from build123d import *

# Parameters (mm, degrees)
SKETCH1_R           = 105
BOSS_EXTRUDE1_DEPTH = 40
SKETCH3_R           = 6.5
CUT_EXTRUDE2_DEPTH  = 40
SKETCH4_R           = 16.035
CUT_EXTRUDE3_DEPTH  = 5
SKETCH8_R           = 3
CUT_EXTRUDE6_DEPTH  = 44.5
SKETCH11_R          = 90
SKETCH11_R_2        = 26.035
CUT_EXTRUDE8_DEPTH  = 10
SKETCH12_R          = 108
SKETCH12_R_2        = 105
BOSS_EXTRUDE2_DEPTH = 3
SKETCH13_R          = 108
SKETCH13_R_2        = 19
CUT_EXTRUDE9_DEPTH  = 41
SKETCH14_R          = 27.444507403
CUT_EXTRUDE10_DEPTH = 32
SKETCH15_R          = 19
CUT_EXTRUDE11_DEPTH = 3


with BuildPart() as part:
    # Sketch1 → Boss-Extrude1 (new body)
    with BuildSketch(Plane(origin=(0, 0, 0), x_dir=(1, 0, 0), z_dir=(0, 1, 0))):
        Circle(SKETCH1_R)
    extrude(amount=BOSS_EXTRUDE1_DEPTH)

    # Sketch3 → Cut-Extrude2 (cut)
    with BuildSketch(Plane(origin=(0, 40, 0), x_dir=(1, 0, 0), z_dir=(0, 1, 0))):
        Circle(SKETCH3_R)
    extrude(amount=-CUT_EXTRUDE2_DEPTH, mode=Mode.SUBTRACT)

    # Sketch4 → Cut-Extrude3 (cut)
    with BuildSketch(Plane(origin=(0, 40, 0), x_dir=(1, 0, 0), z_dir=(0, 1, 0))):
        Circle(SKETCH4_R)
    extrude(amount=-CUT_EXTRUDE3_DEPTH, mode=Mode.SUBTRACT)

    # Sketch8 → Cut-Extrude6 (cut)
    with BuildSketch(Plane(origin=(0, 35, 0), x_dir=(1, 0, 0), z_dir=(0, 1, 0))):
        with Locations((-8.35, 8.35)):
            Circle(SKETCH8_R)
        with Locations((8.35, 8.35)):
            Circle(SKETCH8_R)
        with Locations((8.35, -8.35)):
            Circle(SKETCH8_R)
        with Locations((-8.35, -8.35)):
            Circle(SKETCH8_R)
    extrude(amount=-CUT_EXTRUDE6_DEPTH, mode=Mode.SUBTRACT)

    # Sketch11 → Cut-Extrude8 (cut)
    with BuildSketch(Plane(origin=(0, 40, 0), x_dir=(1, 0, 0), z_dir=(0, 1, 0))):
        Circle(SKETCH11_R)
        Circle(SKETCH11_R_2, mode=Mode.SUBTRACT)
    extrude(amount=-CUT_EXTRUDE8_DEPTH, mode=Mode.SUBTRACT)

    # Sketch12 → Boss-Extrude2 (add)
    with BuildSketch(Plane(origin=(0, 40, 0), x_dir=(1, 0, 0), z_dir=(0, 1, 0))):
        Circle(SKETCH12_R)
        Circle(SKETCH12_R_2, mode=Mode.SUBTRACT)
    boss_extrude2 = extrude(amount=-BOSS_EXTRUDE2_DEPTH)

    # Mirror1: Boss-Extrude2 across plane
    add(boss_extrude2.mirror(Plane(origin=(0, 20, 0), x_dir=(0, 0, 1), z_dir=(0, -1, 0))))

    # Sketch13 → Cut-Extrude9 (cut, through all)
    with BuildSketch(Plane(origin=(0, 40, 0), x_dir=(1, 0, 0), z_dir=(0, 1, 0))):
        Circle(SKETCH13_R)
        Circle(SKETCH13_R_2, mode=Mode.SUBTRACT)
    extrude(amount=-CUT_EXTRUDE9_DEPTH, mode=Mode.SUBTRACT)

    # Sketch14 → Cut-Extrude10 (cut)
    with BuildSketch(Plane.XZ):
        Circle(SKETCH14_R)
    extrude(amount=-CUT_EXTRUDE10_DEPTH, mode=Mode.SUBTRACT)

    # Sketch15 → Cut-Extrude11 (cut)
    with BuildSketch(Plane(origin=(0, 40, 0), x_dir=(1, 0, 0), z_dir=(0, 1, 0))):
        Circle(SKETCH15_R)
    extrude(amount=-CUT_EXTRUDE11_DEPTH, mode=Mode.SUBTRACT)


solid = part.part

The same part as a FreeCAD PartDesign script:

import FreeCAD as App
import Part
import Sketcher
Q = App.Units.Quantity

doc = App.newDocument("Part")
params = doc.addObject("Spreadsheet::Sheet", "Params")
for row, (alias, value) in enumerate([
    ("sketch1_diameter", "210 mm"),
    ("pad1_length", "40 mm"),
    ("sketch2_diameter", "13 mm"),
    ("pocket1_length", "40 mm"),
    ("sketch3_diameter", "32.07 mm"),
    ("pocket2_length", "5 mm"),
    ("sketch4_diameter", "6 mm"),
    ("pocket3_length", "44.5 mm"),
    ("sketch5_diameter", "180 mm"),
    ("sketch5_diameter2", "52.07 mm"),
    ("pocket4_length", "10 mm"),
    ("sketch6_diameter", "216 mm"),
    ("sketch6_diameter2", "210 mm"),
    ("pad2_length", "3 mm"),
    ("sketch7_diameter", "216 mm"),
    ("sketch7_diameter2", "38 mm"),
    ("pocket6_length", "32 mm"),
    ("sketch9_diameter", "38 mm"),
    ("pocket7_length", "3 mm"),
], start=1):
    params.set(f"A{row}", alias)
    params.set(f"B{row}", "=" + value)
    params.setAlias(f"B{row}", alias)

body = doc.addObject("PartDesign::Body", "Body")

sketch1 = doc.addObject("Sketcher::SketchObject", "Sketch")
body.addObject(sketch1)
sketch1.AttachmentSupport = (doc.XZ_Plane, [""])
sketch1.MapMode = "FlatFace"
sketch1.addGeometry(Part.Circle(App.Vector(0, 0, 0), App.Vector(0, 0, 1), 105), False)
sketch1.addConstraint(Sketcher.Constraint("Coincident", 0, 3, -1, 1))
sketch1.addConstraint(Sketcher.Constraint("Diameter", 0, Q("210 mm")))
sketch1.setExpression("Constraints[1]", "Params.sketch1_diameter")
pad1 = doc.addObject("PartDesign::Pad", "Pad")
body.addObject(pad1)
pad1.Profile = sketch1
pad1.setExpression("Length", "Params.pad1_length")
pad1.Reversed = True

sketch2 = doc.addObject("Sketcher::SketchObject", "Sketch001")
body.addObject(sketch2)
sketch2.AttachmentSupport = (doc.XZ_Plane, [""])
sketch2.MapMode = "FlatFace"
sketch2.AttachmentOffset = App.Placement(App.Vector(0, 0, -40), App.Rotation())
sketch2.addGeometry(Part.Circle(App.Vector(0, 0, 0), App.Vector(0, 0, 1), 6), False)
sketch2.addConstraint(Sketcher.Constraint("Coincident", 0, 3, -1, 1))
sketch2.addConstraint(Sketcher.Constraint("Diameter", 0, Q("13 mm")))
sketch2.setExpression("Constraints[1]", "Params.sketch2_diameter")
pocket1 = doc.addObject("PartDesign::Pocket", "Pocket")
body.addObject(pocket1)
pocket1.Profile = sketch2
pocket1.setExpression("Length", "Params.pocket1_length")
pocket1.Reversed = True

sketch3 = doc.addObject("Sketcher::SketchObject", "Sketch002")
body.addObject(sketch3)
sketch3.AttachmentSupport = (doc.XZ_Plane, [""])
sketch3.MapMode = "FlatFace"
sketch3.AttachmentOffset = App.Placement(App.Vector(0, 0, -40), App.Rotation())
sketch3.addGeometry(Part.Circle(App.Vector(0, 0, 0), App.Vector(0, 0, 1), 16), False)
sketch3.addConstraint(Sketcher.Constraint("Coincident", 0, 3, -1, 1))
sketch3.addConstraint(Sketcher.Constraint("Diameter", 0, Q("32.07 mm")))
sketch3.setExpression("Constraints[1]", "Params.sketch3_diameter")
pocket2 = doc.addObject("PartDesign::Pocket", "Pocket001")
body.addObject(pocket2)
pocket2.Profile = sketch3
pocket2.setExpression("Length", "Params.pocket2_length")
pocket2.Reversed = True

sketch4 = doc.addObject("Sketcher::SketchObject", "Sketch003")
body.addObject(sketch4)
sketch4.AttachmentSupport = (doc.XZ_Plane, [""])
sketch4.MapMode = "FlatFace"
sketch4.AttachmentOffset = App.Placement(App.Vector(0, 0, -35), App.Rotation())
sketch4.addGeometry(Part.Circle(App.Vector(-8.3, -8.3, 0), App.Vector(0, 0, 1), 3), False)
sketch4.addGeometry(Part.Circle(App.Vector(8.3, -8.3, 0), App.Vector(0, 0, 1), 3), False)
sketch4.addGeometry(Part.Circle(App.Vector(8.3, 8.3, 0), App.Vector(0, 0, 1), 3), False)
sketch4.addGeometry(Part.Circle(App.Vector(-8.3, 8.3, 0), App.Vector(0, 0, 1), 3), False)
sketch4.addConstraint(Sketcher.Constraint("Equal", 0, 1))
sketch4.addConstraint(Sketcher.Constraint("Equal", 1, 2))
sketch4.addConstraint(Sketcher.Constraint("Equal", 2, 3))
sketch4.addConstraint(Sketcher.Constraint("Symmetric", 0, 3, 2, 3, -1, 1))
sketch4.addConstraint(Sketcher.Constraint("Symmetric", 1, 3, 3, 3, -1, 1))
sketch4.addConstraint(Sketcher.Constraint("Symmetric", 0, 3, 1, 3, -2))
sketch4.addConstraint(Sketcher.Constraint("Diameter", 0, Q("6 mm")))
sketch4.addConstraint(Sketcher.Constraint("DistanceX", 0, 3, 1, 3, Q("16.7 mm")))
sketch4.addConstraint(Sketcher.Constraint("DistanceY", 1, 3, 2, 3, Q("16.7 mm")))
sketch4.setExpression("Constraints[6]", "Params.sketch4_diameter")
pocket3 = doc.addObject("PartDesign::Pocket", "Pocket002")
body.addObject(pocket3)
pocket3.Profile = sketch4
pocket3.setExpression("Length", "Params.pocket3_length")
pocket3.Reversed = True

sketch5 = doc.addObject("Sketcher::SketchObject", "Sketch004")
body.addObject(sketch5)
sketch5.AttachmentSupport = (doc.XZ_Plane, [""])
sketch5.MapMode = "FlatFace"
sketch5.AttachmentOffset = App.Placement(App.Vector(0, 0, -40), App.Rotation())
sketch5.addGeometry(Part.Circle(App.Vector(0, 0, 0), App.Vector(0, 0, 1), 90), False)
sketch5.addGeometry(Part.Circle(App.Vector(0, 0, 0), App.Vector(0, 0, 1), 26), False)
sketch5.addConstraint(Sketcher.Constraint("Coincident", 0, 3, -1, 1))
sketch5.addConstraint(Sketcher.Constraint("Coincident", 1, 3, -1, 1))
sketch5.addConstraint(Sketcher.Constraint("Diameter", 0, Q("180 mm")))
sketch5.addConstraint(Sketcher.Constraint("Diameter", 1, Q("52.07 mm")))
sketch5.setExpression("Constraints[2]", "Params.sketch5_diameter")
sketch5.setExpression("Constraints[3]", "Params.sketch5_diameter2")
pocket4 = doc.addObject("PartDesign::Pocket", "Pocket003")
body.addObject(pocket4)
pocket4.Profile = sketch5
pocket4.setExpression("Length", "Params.pocket4_length")
pocket4.Reversed = True

sketch6 = doc.addObject("Sketcher::SketchObject", "Sketch005")
body.addObject(sketch6)
sketch6.AttachmentSupport = (doc.XZ_Plane, [""])
sketch6.MapMode = "FlatFace"
sketch6.AttachmentOffset = App.Placement(App.Vector(0, 0, -40), App.Rotation())
sketch6.addGeometry(Part.Circle(App.Vector(0, 0, 0), App.Vector(0, 0, 1), 108), False)
sketch6.addGeometry(Part.Circle(App.Vector(0, 0, 0), App.Vector(0, 0, 1), 105), False)
sketch6.addConstraint(Sketcher.Constraint("Coincident", 0, 3, -1, 1))
sketch6.addConstraint(Sketcher.Constraint("Coincident", 1, 3, -1, 1))
sketch6.addConstraint(Sketcher.Constraint("Diameter", 0, Q("216 mm")))
sketch6.addConstraint(Sketcher.Constraint("Diameter", 1, Q("210 mm")))
sketch6.setExpression("Constraints[2]", "Params.sketch6_diameter")
sketch6.setExpression("Constraints[3]", "Params.sketch6_diameter2")
pad2 = doc.addObject("PartDesign::Pad", "Pad001")
body.addObject(pad2)
pad2.Profile = sketch6
pad2.setExpression("Length", "Params.pad2_length")
doc.recompute()

datumplane = doc.addObject("PartDesign::Plane", "DatumPlane")
body.addObject(datumplane)
datumplane.AttachmentSupport = (doc.XZ_Plane, [""])
datumplane.MapMode = "FlatFace"
datumplane.AttachmentOffset = App.Placement(App.Vector(0, 0, -20), App.Rotation())
mirrored = doc.addObject("PartDesign::Mirrored", "Mirrored")
body.addObject(mirrored)
mirrored.Originals = [pad2]
mirrored.MirrorPlane = (datumplane, [""])
body.Tip = mirrored

sketch7 = doc.addObject("Sketcher::SketchObject", "Sketch006")
body.addObject(sketch7)
sketch7.AttachmentSupport = (doc.XZ_Plane, [""])
sketch7.MapMode = "FlatFace"
sketch7.AttachmentOffset = App.Placement(App.Vector(0, 0, -40), App.Rotation())
sketch7.addGeometry(Part.Circle(App.Vector(0, 0, 0), App.Vector(0, 0, 1), 108), False)
sketch7.addGeometry(Part.Circle(App.Vector(0, 0, 0), App.Vector(0, 0, 1), 19), False)
sketch7.addConstraint(Sketcher.Constraint("Coincident", 0, 3, -1, 1))
sketch7.addConstraint(Sketcher.Constraint("Coincident", 1, 3, -1, 1))
sketch7.addConstraint(Sketcher.Constraint("Diameter", 0, Q("216 mm")))
sketch7.addConstraint(Sketcher.Constraint("Diameter", 1, Q("38 mm")))
sketch7.setExpression("Constraints[2]", "Params.sketch7_diameter")
sketch7.setExpression("Constraints[3]", "Params.sketch7_diameter2")
pocket5 = doc.addObject("PartDesign::Pocket", "Pocket004")
body.addObject(pocket5)
pocket5.Profile = sketch7
pocket5.Type = "ThroughAll"
pocket5.Reversed = True

sketch8 = doc.addObject("Sketcher::SketchObject", "Sketch007")
body.addObject(sketch8)
sketch8.AttachmentSupport = (doc.XZ_Plane, [""])
sketch8.MapMode = "FlatFace"
sketch8.addGeometry(Part.Circle(App.Vector(0, 0, 0), App.Vector(0, 0, 1), 27), False)
sketch8.addConstraint(Sketcher.Constraint("Coincident", 0, 3, -1, 1))
sketch8.addConstraint(Sketcher.Constraint("Diameter", 0, Q("54.889015 mm")))
pocket6 = doc.addObject("PartDesign::Pocket", "Pocket005")
body.addObject(pocket6)
pocket6.Profile = sketch8
pocket6.setExpression("Length", "Params.pocket6_length")

sketch9 = doc.addObject("Sketcher::SketchObject", "Sketch008")
body.addObject(sketch9)
sketch9.AttachmentSupport = (doc.XZ_Plane, [""])
sketch9.MapMode = "FlatFace"
sketch9.AttachmentOffset = App.Placement(App.Vector(0, 0, -40), App.Rotation())
sketch9.addGeometry(Part.Circle(App.Vector(0, 0, 0), App.Vector(0, 0, 1), 19), False)
sketch9.addConstraint(Sketcher.Constraint("Coincident", 0, 3, -1, 1))
sketch9.addConstraint(Sketcher.Constraint("Diameter", 0, Q("38 mm")))
sketch9.setExpression("Constraints[1]", "Params.sketch9_diameter")
pocket7 = doc.addObject("PartDesign::Pocket", "Pocket006")
body.addObject(pocket7)
pocket7.Profile = sketch9
pocket7.setExpression("Length", "Params.pocket7_length")
pocket7.Reversed = True

doc.recompute()
